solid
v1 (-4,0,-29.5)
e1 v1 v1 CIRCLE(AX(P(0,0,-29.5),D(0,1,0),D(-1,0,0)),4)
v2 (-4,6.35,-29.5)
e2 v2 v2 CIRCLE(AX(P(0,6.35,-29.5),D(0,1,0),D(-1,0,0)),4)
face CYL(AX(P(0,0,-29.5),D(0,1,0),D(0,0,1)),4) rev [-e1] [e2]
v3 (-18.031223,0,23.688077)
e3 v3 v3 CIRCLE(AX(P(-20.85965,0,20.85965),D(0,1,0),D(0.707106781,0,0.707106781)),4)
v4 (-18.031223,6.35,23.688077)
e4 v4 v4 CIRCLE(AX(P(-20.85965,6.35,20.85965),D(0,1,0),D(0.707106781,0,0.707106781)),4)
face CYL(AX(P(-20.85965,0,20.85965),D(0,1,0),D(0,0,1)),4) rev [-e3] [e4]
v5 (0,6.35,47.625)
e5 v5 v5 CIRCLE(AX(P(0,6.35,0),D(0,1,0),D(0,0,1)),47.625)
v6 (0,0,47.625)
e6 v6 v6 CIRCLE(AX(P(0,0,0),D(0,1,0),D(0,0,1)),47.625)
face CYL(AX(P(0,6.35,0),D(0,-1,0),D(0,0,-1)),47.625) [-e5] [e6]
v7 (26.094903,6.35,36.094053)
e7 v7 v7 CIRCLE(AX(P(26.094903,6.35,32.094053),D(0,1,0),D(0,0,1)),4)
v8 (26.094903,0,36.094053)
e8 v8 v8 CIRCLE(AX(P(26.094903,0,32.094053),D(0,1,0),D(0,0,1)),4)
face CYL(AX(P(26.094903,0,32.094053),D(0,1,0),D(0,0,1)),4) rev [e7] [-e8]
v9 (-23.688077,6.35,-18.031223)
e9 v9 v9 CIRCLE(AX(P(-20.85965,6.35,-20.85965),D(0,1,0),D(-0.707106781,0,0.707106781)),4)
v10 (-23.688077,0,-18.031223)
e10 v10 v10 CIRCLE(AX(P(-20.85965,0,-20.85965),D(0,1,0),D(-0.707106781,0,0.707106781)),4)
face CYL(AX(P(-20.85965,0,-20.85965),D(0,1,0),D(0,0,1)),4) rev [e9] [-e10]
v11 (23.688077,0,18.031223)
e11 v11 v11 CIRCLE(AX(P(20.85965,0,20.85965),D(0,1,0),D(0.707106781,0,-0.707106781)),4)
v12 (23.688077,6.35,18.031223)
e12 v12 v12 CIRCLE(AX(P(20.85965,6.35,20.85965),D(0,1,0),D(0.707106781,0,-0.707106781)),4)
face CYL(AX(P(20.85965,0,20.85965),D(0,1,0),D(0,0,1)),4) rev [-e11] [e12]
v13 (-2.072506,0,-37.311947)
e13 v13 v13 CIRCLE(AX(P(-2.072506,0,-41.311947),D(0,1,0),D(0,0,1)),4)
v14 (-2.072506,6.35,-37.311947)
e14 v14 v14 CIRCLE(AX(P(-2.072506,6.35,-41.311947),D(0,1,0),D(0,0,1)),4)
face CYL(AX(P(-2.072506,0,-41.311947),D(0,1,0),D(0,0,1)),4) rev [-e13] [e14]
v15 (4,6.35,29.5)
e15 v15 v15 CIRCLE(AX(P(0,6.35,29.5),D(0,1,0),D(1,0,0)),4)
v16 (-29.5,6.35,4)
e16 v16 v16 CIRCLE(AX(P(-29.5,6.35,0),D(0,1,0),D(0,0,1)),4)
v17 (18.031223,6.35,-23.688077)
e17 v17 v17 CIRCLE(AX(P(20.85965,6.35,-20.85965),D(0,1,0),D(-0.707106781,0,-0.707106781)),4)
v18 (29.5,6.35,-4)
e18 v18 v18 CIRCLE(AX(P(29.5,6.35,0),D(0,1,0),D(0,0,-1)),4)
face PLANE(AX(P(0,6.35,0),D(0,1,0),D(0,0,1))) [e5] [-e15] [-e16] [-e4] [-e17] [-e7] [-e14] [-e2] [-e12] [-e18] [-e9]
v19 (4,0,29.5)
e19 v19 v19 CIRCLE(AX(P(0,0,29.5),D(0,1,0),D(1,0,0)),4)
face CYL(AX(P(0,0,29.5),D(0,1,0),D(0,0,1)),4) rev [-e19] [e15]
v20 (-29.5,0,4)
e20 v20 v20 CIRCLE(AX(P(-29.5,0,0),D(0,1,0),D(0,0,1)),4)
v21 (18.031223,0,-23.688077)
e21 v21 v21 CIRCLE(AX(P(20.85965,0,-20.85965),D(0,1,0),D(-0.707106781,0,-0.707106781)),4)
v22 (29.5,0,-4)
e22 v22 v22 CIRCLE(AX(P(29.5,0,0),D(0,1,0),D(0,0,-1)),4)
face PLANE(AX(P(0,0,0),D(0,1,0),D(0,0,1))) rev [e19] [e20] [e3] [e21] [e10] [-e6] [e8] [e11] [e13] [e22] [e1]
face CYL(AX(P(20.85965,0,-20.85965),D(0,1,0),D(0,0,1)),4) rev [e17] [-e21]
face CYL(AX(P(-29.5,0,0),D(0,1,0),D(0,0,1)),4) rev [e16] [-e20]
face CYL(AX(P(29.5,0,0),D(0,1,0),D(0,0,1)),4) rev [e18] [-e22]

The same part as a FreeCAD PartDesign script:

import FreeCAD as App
import Part
import Sketcher

V = App.Vector
Q = App.Units.Quantity

doc = App.newDocument("Part")
params = doc.addObject("Spreadsheet::Sheet", "Params")
for row, (alias, value) in enumerate([
    ("sketch1_diameter", "3.75 in"),
    ("pad1_length", "0.25 in"),
], start=1):
    params.set(f"A{row}", alias)
    params.set(f"B{row}", "=" + value)
    params.setAlias(f"B{row}", alias)

body = doc.addObject("PartDesign::Body", "Body")

sketch1 = doc.addObject("Sketcher::SketchObject", "Sketch")
body.addObject(sketch1)
sketch1.AttachmentSupport = (doc.XZ_Plane, [""])
sketch1.MapMode = "FlatFace"
sketch1.addGeometry(Part.Circle(V(0, 0, 0), V(0, 0, 1), 48), False)
sketch1.addConstraint(Sketcher.Constraint("Coincident", 0, 3, -1, 1))
sketch1.addConstraint(Sketcher.Constraint("Diameter", 0, Q("3.75 in")))
sketch1.setExpression("Constraints[1]", "Params.sketch1_diameter")
pad1 = doc.addObject("PartDesign::Pad", "Pad")
body.addObject(pad1)
pad1.Profile = sketch1
pad1.setExpression("Length", "Params.pad1_length")
pad1.Reversed = True

sketch2 = doc.addObject("Sketcher::SketchObject", "Sketch001")
body.addObject(sketch2)
sketch2.AttachmentSupport = (doc.XZ_Plane, [""])
sketch2.MapMode = "FlatFace"
sketch2.AttachmentOffset = App.Placement(V(0, 0, -0.25 * 25.4), App.Rotation())
sketch2.addGeometry(Part.Circle(V(-29.5, 0, 0), V(0, 0, 1), 4), False)
sketch2.addConstraint(Sketcher.Constraint("PointOnObject", 0, 3, -1))
sketch2.addConstraint(Sketcher.Constraint("Diameter", 0, 8.0))
sketch2.addConstraint(Sketcher.Constraint("DistanceX", 0, 3, -1, 1, 29.5))
pocket1 = doc.addObject("PartDesign::Pocket", "Pocket")
body.addObject(pocket1)
pocket1.Profile = sketch2
pocket1.Type = "ThroughAll"
pocket1.Reversed = True
doc.recompute()

polarpattern = doc.addObject("PartDesign::PolarPattern", "PolarPattern")
body.addObject(polarpattern)
polarpattern.Originals = [pocket1]
polarpattern.Axis = (doc.Y_Axis, [""])
polarpattern.Angle = 360
polarpattern.Occurrences = 8
body.Tip = polarpattern

sketch3 = doc.addObject("Sketcher::SketchObject", "Sketch002")
body.addObject(sketch3)
sketch3.AttachmentSupport = (doc.XZ_Plane, [""])
sketch3.MapMode = "FlatFace"
sketch3.AttachmentOffset = App.Placement(V(0, 0, -0.25 * 25.4), App.Rotation())
sketch3.addGeometry(Part.Circle(V(-2.1, -41.3, 0), V(0, 0, 1), 4), False)
sketch3.addConstraint(Sketcher.Constraint("Diameter", 0, 8.0))
sketch3.addConstraint(Sketcher.Constraint("DistanceX", 0, 3, -1, 1, 2.072506))
sketch3.addConstraint(Sketcher.Constraint("DistanceY", 0, 3, -1, 1, 41.311947))
pocket2 = doc.addObject("PartDesign::Pocket", "Pocket001")
body.addObject(pocket2)
pocket2.Profile = sketch3
pocket2.Type = "ThroughAll"
pocket2.Reversed = True

sketch4 = doc.addObject("Sketcher::SketchObject", "Sketch003")
body.addObject(sketch4)
sketch4.AttachmentSupport = (doc.XZ_Plane, [""])
sketch4.MapMode = "FlatFace"
sketch4.AttachmentOffset = App.Placement(V(0, 0, -0.25 * 25.4), App.Rotation())
sketch4.addGeometry(Part.Circle(V(26.1, 32.1, 0), V(0, 0, 1), 4), False)
sketch4.addConstraint(Sketcher.Constraint("Diameter", 0, 8.0))
sketch4.addConstraint(Sketcher.Constraint("DistanceX", -1, 1, 0, 3, 26.094903))
sketch4.addConstraint(Sketcher.Constraint("DistanceY", -1, 1, 0, 3, 32.094053))
pocket3 = doc.addObject("PartDesign::Pocket", "Pocket002")
body.addObject(pocket3)
pocket3.Profile = sketch4
pocket3.Type = "ThroughAll"
pocket3.Reversed = True

doc.recompute()
